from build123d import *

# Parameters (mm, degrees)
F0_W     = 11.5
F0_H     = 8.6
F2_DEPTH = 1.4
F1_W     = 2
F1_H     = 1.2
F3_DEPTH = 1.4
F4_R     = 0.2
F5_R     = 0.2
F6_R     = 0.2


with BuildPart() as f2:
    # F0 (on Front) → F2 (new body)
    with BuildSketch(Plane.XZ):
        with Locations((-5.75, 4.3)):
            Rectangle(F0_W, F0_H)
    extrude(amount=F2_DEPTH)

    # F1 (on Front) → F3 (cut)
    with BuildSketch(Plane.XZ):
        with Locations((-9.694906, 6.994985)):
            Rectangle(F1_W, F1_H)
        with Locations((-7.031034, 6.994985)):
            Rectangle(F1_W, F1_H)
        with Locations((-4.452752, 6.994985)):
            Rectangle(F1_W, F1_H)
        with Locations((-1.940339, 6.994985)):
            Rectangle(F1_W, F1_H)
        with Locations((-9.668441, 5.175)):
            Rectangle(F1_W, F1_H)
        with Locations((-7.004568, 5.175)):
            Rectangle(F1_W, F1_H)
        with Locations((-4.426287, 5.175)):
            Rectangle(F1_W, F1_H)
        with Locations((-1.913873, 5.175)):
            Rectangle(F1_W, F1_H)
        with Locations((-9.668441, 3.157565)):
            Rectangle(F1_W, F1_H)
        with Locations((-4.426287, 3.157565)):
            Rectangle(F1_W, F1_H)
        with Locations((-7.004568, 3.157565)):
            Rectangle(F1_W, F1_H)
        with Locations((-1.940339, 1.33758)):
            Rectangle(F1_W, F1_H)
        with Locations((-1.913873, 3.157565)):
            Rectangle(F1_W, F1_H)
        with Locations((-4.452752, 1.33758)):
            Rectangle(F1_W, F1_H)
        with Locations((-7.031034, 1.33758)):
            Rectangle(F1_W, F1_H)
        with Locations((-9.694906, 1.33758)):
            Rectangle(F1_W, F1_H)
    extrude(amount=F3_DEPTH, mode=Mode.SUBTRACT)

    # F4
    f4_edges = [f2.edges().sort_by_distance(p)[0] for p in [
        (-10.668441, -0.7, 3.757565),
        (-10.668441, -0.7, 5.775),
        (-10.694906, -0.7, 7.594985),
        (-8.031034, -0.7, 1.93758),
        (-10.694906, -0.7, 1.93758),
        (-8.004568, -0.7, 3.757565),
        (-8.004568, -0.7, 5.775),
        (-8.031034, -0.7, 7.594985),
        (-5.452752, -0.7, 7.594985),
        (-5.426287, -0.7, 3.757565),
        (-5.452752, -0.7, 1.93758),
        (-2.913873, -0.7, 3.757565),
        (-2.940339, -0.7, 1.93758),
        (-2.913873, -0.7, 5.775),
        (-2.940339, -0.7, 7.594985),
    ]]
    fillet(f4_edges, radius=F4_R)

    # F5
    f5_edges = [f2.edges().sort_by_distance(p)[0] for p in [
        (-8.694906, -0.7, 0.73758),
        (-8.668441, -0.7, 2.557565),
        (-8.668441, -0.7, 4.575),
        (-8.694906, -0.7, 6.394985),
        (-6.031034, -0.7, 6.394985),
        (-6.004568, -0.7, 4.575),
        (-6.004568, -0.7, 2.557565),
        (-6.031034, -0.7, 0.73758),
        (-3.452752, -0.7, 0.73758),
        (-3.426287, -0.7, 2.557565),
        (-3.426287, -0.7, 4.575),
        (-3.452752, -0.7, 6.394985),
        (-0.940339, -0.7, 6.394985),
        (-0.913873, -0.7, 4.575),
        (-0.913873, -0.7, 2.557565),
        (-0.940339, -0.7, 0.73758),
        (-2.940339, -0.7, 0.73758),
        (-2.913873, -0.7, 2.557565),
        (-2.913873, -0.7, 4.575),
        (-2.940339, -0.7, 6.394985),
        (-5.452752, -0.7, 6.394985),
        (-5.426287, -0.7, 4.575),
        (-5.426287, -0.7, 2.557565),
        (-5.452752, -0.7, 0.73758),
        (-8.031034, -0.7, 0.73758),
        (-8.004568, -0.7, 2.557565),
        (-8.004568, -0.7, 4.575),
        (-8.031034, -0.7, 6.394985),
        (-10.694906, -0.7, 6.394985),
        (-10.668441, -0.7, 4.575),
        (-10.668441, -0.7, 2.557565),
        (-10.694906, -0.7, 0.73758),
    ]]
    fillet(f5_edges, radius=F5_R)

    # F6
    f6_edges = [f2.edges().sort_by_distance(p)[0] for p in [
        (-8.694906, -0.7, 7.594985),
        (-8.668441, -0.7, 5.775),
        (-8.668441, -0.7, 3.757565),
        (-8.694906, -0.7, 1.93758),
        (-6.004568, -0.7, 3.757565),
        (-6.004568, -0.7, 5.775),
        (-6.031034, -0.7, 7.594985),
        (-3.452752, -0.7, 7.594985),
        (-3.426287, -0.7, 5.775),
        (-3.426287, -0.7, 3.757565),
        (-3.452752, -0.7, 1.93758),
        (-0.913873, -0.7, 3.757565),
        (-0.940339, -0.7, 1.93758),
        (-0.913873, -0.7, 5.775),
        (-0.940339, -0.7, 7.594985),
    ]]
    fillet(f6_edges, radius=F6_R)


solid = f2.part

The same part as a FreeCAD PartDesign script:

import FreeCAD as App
import Part
import Sketcher
from FreeCAD import Vector


def edges_at(feature, points):
    """Names of the edges that pass closest to the given points."""
    edges = feature.Shape.Edges
    near = lambda p: min(range(len(edges)), key=lambda i: edges[i].distToShape(Part.Vertex(*p))[0])
    return sorted({f"Edge{near(p) + 1}" for p in points})


def add_polygon(sketch, points):
    """Adds a closed chain of lines whose ends are joined by coincident constraints."""
    first, n = sketch.GeometryCount, len(points)
    for a, b in zip(points, points[1:] + points[:1]):
        sketch.addGeometry(Part.LineSegment(App.Vector(*a, 0), App.Vector(*b, 0)), False)
    for i in range(n):
        sketch.addConstraint(Sketcher.Constraint("Coincident", first + i, 2, first + (i + 1) % n, 1))

doc = App.newDocument("Part")
body = doc.addObject("PartDesign::Body", "Body")

# Sketch on XZ plane
sketch1 = doc.addObject("Sketcher::SketchObject", "Sketch")
body.addObject(sketch1)
sketch1.AttachmentSupport = (doc.XZ_Plane, [""])
sketch1.MapMode = "FlatFace"
add_polygon(sketch1, [(-12, 9), (-12, 0), (0, 0), (0, 9)])  # lines 0-3
sketch1.addConstraint([
    Sketcher.Constraint("Vertical", 0),
    Sketcher.Constraint("Horizontal", 1),
    Sketcher.Constraint("Vertical", 2),
    Sketcher.Constraint("Horizontal", 3),
    Sketcher.Constraint("Coincident", 1, 2, -1, 1),
    Sketcher.Constraint("DistanceX", 1, 1, 1, 2, 11.5),
    Sketcher.Constraint("DistanceY", 0, 2, 0, 1, 8.6),
])
pad1 = doc.addObject("PartDesign::Pad", "Pad")
body.addObject(pad1)
pad1.Profile = sketch1
pad1.Length = 1.4

# Sketch on XZ plane
sketch2 = doc.addObject("Sketcher::SketchObject", "Sketch001")
body.addObject(sketch2)
sketch2.AttachmentSupport = (doc.XZ_Plane, [""])
sketch2.MapMode = "FlatFace"
add_polygon(sketch2, [(-10.7, 7.6), (-10.7, 6.4), (-8.7, 6.4), (-8.7, 7.6)])  # lines 0-3
add_polygon(sketch2, [(-8, 7.6), (-8, 6.4), (-6, 6.4), (-6, 7.6)])  # lines 4-7
add_polygon(sketch2, [(-5.5, 7.6), (-5.5, 6.4), (-3.5, 6.4), (-3.5, 7.6)])  # lines 8-11
add_polygon(sketch2, [(-2.9, 7.6), (-2.9, 6.4), (-0.9, 6.4), (-0.9, 7.6)])  # lines 12-15
add_polygon(sketch2, [(-10.7, 5.8), (-10.7, 4.6), (-8.7, 4.6), (-8.7, 5.8)])  # lines 16-19
add_polygon(sketch2, [(-8, 5.8), (-8, 4.6), (-6, 4.6), (-6, 5.8)])  # lines 20-23
add_polygon(sketch2, [(-5.4, 5.8), (-5.4, 4.6), (-3.4, 4.6), (-3.4, 5.8)])  # lines 24-27
add_polygon(sketch2, [(-2.9, 5.8), (-2.9, 4.6), (-0.9, 4.6), (-0.9, 5.8)])  # lines 28-31
add_polygon(sketch2, [(-10.7, 3.8), (-10.7, 2.6), (-8.7, 2.6), (-8.7, 3.8)])  # lines 32-35
add_polygon(sketch2, [(-5.4, 3.8), (-5.4, 2.6), (-3.4, 2.6), (-3.4, 3.8)])  # lines 36-39
add_polygon(sketch2, [(-8, 3.8), (-8, 2.6), (-6, 2.6), (-6, 3.8)])  # lines 40-43
add_polygon(sketch2, [(-2.9, 1.9), (-2.9, 0.7), (-0.9, 0.7), (-0.9, 1.9)])  # lines 44-47
add_polygon(sketch2, [(-2.9, 3.8), (-2.9, 2.6), (-0.9, 2.6), (-0.9, 3.8)])  # lines 48-51
add_polygon(sketch2, [(-5.5, 1.9), (-5.5, 0.7), (-3.5, 0.7), (-3.5, 1.9)])  # lines 52-55
add_polygon(sketch2, [(-8, 1.9), (-8, 0.7), (-6, 0.7), (-6, 1.9)])  # lines 56-59
add_polygon(sketch2, [(-10.7, 1.9), (-10.7, 0.7), (-8.7, 0.7), (-8.7, 1.9)])  # lines 60-63
sketch2.addConstraint([
    Sketcher.Constraint("Vertical", 0),
    Sketcher.Constraint("Horizontal", 1),
    Sketcher.Constraint("Vertical", 2),
    Sketcher.Constraint("Horizontal", 3),
    Sketcher.Constraint("Vertical", 4),
    Sketcher.Constraint("Horizontal", 5),
    Sketcher.Constraint("Vertical", 6),
    Sketcher.Constraint("Horizontal", 7),
    Sketcher.Constraint("Vertical", 8),
    Sketcher.Constraint("Horizontal", 9),
    Sketcher.Constraint("Vertical", 10),
    Sketcher.Constraint("Horizontal", 11),
    Sketcher.Constraint("Vertical", 12),
    Sketcher.Constraint("Horizontal", 13),
    Sketcher.Constraint("Vertical", 14),
    Sketcher.Constraint("Horizontal", 15),
    Sketcher.Constraint("Vertical", 16),
    Sketcher.Constraint("Horizontal", 17),
    Sketcher.Constraint("Vertical", 18),
    Sketcher.Constraint("Horizontal", 19),
    Sketcher.Constraint("Vertical", 20),
    Sketcher.Constraint("Horizontal", 21),
    Sketcher.Constraint("Vertical", 22),
    Sketcher.Constraint("Horizontal", 23),
    Sketcher.Constraint("Vertical", 24),
    Sketcher.Constraint("Horizontal", 25),
    Sketcher.Constraint("Vertical", 26),
    Sketcher.Constraint("Horizontal", 27),
    Sketcher.Constraint("Vertical", 28),
    Sketcher.Constraint("Horizontal", 29),
    Sketcher.Constraint("Vertical", 30),
    Sketcher.Constraint("Horizontal", 31),
    Sketcher.Constraint("Vertical", 32),
    Sketcher.Constraint("Horizontal", 33),
    Sketcher.Constraint("Vertical", 34),
    Sketcher.Constraint("Horizontal", 35),
    Sketcher.Constraint("Vertical", 36),
    Sketcher.Constraint("Horizontal", 37),
    Sketcher.Constraint("Vertical", 38),
    Sketcher.Constraint("Horizontal", 39),
    Sketcher.Constraint("Vertical", 40),
    Sketcher.Constraint("Horizontal", 41),
    Sketcher.Constraint("Vertical", 42),
    Sketcher.Constraint("Horizontal", 43),
    Sketcher.Constraint("Vertical", 44),
    Sketcher.Constraint("Horizontal", 45),
    Sketcher.Constraint("Vertical", 46),
    Sketcher.Constraint("Horizontal", 47),
    Sketcher.Constraint("Vertical", 48),
    Sketcher.Constraint("Horizontal", 49),
    Sketcher.Constraint("Vertical", 50),
    Sketcher.Constraint("Horizontal", 51),
    Sketcher.Constraint("Vertical", 52),
    Sketcher.Constraint("Horizontal", 53),
    Sketcher.Constraint("Vertical", 54),
    Sketcher.Constraint("Horizontal", 55),
    Sketcher.Constraint("Vertical", 56),
    Sketcher.Constraint("Horizontal", 57),
    Sketcher.Constraint("Vertical", 58),
    Sketcher.Constraint("Horizontal", 59),
    Sketcher.Constraint("Vertical", 60),
    Sketcher.Constraint("Horizontal", 61),
    Sketcher.Constraint("Vertical", 62),
    Sketcher.Constraint("Horizontal", 63),
    Sketcher.Constraint("Horizontal", 1, 2, 4, 2),
    Sketcher.Constraint("Horizontal", 3, 2, 6, 2),
    Sketcher.Constraint("Horizontal", 5, 2, 8, 2),
    Sketcher.Constraint("Horizontal", 7, 2, 10, 2),
    Sketcher.Constraint("Horizontal", 9, 2, 12, 2),
    Sketcher.Constraint("Horizontal", 11, 2, 14, 2),
    Sketcher.Constraint("Horizontal", 17, 2, 20, 2),
    Sketcher.Constraint("Horizontal", 19, 2, 22, 2),
    Sketcher.Constraint("Horizontal", 21, 2, 24, 2),
    Sketcher.Constraint("Horizontal", 23, 2, 26, 2),
    Sketcher.Constraint("Horizontal", 25, 2, 28, 2),
    Sketcher.Constraint("Horizontal", 27, 2, 30, 2),
    Sketcher.Constraint("Horizontal", 33, 2, 36, 2),
    Sketcher.Constraint("Horizontal", 35, 2, 38, 2),
    Sketcher.Constraint("Horizontal", 37, 2, 40, 2),
    Sketcher.Constraint("Horizontal", 39, 2, 42, 2),
    Sketcher.Constraint("Horizontal", 41, 2, 48, 2),
    Sketcher.Constraint("Horizontal", 43, 2, 50, 2),
    Sketcher.Constraint("Horizontal", 45, 2, 52, 2),
    Sketcher.Constraint("Horizontal", 47, 2, 54, 2),
    Sketcher.Constraint("Horizontal", 53, 2, 56, 2),
    Sketcher.Constraint("Horizontal", 55, 2, 58, 2),
    Sketcher.Constraint("Horizontal", 57, 2, 60, 2),
    Sketcher.Constraint("Horizontal", 59, 2, 62, 2),
    Sketcher.Constraint("Vertical", 19, 2, 32, 2),
    Sketcher.Constraint("Vertical", 18, 2, 33, 2),
    Sketcher.Constraint("Vertical", 27, 2, 36, 2),
    Sketcher.Constraint("Vertical", 26, 2, 37, 2),
    Sketcher.Constraint("Vertical", 23, 2, 40, 2),
    Sketcher.Constraint("Vertical", 22, 2, 41, 2),
    Sketcher.Constraint("Vertical", 15, 2, 44, 2),
    Sketcher.Constraint("Vertical", 14, 2, 45, 2),
    Sketcher.Constraint("Vertical", 31, 2, 48, 2),
    Sketcher.Constraint("Vertical", 30, 2, 49, 2),
    Sketcher.Constraint("Vertical", 11, 2, 52, 2),
    Sketcher.Constraint("Vertical", 10, 2, 53, 2),
    Sketcher.Constraint("Vertical", 7, 2, 56, 2),
    Sketcher.Constraint("Vertical", 6, 2, 57, 2),
    Sketcher.Constraint("Vertical", 3, 2, 60, 2),
    Sketcher.Constraint("Vertical", 2, 2, 61, 2),
    Sketcher.Constraint("Equal", 3, 5),
    Sketcher.Constraint("Equal", 7, 9),
    Sketcher.Constraint("Equal", 11, 13),
    Sketcher.Constraint("Equal", 15, 17),
    Sketcher.Constraint("Equal", 19, 21),
    Sketcher.Constraint("Equal", 23, 25),
    Sketcher.Constraint("Equal", 27, 29),
    Sketcher.Constraint("Equal", 14, 16),
    Sketcher.Constraint("Equal", 30, 32),
    Sketcher.Constraint("Equal", 42, 44),
    Sketcher.Constraint("DistanceX", 1, 1, 1, 2, 2.0),
    Sketcher.Constraint("DistanceY", 0, 2, 0, 1, 1.2),
    Sketcher.Constraint("DistanceY", -1, 1, 16, 2, 4.575),
    Sketcher.Constraint("DistanceX", 9, 2, -1, 1, 3.452752),
    Sketcher.Constraint("DistanceX", 12, 2, -1, 1, 2.940339),
    Sketcher.Constraint("DistanceX", 16, 2, -1, 1, 10.668441),
    Sketcher.Constraint("DistanceX", 20, 2, -1, 1, 8.004568),
    Sketcher.Constraint("DistanceY", -1, 1, 44, 2, 0.73758),
    Sketcher.Constraint("DistanceX", 0, 2, -1, 1, 10.694906),
    Sketcher.Constraint("DistanceY", -1, 1, 0, 2, 6.394985),
    Sketcher.Constraint("DistanceX", 4, 2, -1, 1, 8.031034),
    Sketcher.Constraint("DistanceX", 24, 2, -1, 1, 5.426287),
    Sketcher.Constraint("DistanceX", 28, 2, -1, 1, 2.913873),
    Sketcher.Constraint("DistanceY", -1, 1, 32, 2, 2.557565),
])
pocket1 = doc.addObject("PartDesign::Pocket", "Pocket")
body.addObject(pocket1)
pocket1.Profile = sketch2
pocket1.Length = 1.4
pocket1.Reversed = True
doc.recompute()

fillet = doc.addObject("PartDesign::Fillet", "Fillet")
body.addObject(fillet)
fillet.Base = (pocket1, edges_at(pocket1, [
    (-10.668, -0.7, 3.758),
    (-10.668, -0.7, 5.775),
    (-10.695, -0.7, 7.595),
    (-8.031, -0.7, 1.938),
    (-10.695, -0.7, 1.938),
    (-8.005, -0.7, 3.758),
    (-8.005, -0.7, 5.775),
    (-8.031, -0.7, 7.595),
    (-5.453, -0.7, 7.595),
    (-5.426, -0.7, 3.758),
    (-5.453, -0.7, 1.938),
    (-2.914, -0.7, 3.758),
    (-2.94, -0.7, 1.938),
    (-2.914, -0.7, 5.775),
    (-2.94, -0.7, 7.595),
]))
fillet.Radius = 0.2
doc.recompute()

fillet2 = doc.addObject("PartDesign::Fillet", "Fillet001")
body.addObject(fillet2)
fillet2.Base = (fillet, edges_at(fillet, [
    (-8.695, -0.7, 0.738),
    (-8.668, -0.7, 2.558),
    (-8.668, -0.7, 4.575),
    (-8.695, -0.7, 6.395),
    (-6.031, -0.7, 6.395),
    (-6.005, -0.7, 4.575),
    (-6.005, -0.7, 2.558),
    (-6.031, -0.7, 0.738),
    (-3.453, -0.7, 0.738),
    (-3.426, -0.7, 2.558),
    (-3.426, -0.7, 4.575),
    (-3.453, -0.7, 6.395),
    (-0.94, -0.7, 6.395),
    (-0.914, -0.7, 4.575),
    (-0.914, -0.7, 2.558),
    (-0.94, -0.7, 0.738),
    (-2.94, -0.7, 0.738),
    (-2.914, -0.7, 2.558),
    (-2.914, -0.7, 4.575),
    (-2.94, -0.7, 6.395),
    (-5.453, -0.7, 6.395),
    (-5.426, -0.7, 4.575),
    (-5.426, -0.7, 2.558),
    (-5.453, -0.7, 0.738),
    (-8.031, -0.7, 0.738),
    (-8.005, -0.7, 2.558),
    (-8.005, -0.7, 4.575),
    (-8.031, -0.7, 6.395),
    (-10.695, -0.7, 6.395),
    (-10.668, -0.7, 4.575),
    (-10.668, -0.7, 2.558),
    (-10.695, -0.7, 0.738),
]))
fillet2.Radius = 0.2
doc.recompute()

fillet3 = doc.addObject("PartDesign::Fillet", "Fillet002")
body.addObject(fillet3)
fillet3.Base = (fillet2, edges_at(fillet2, [
    (-8.695, -0.7, 7.595),
    (-8.668, -0.7, 5.775),
    (-8.668, -0.7, 3.758),
    (-8.695, -0.7, 1.938),
    (-6.005, -0.7, 3.758),
    (-6.005, -0.7, 5.775),
    (-6.031, -0.7, 7.595),
    (-3.453, -0.7, 7.595),
    (-3.426, -0.7, 5.775),
    (-3.426, -0.7, 3.758),
    (-3.453, -0.7, 1.938),
    (-0.914, -0.7, 3.758),
    (-0.94, -0.7, 1.938),
    (-0.914, -0.7, 5.775),
    (-0.94, -0.7, 7.595),
]))
fillet3.Radius = 0.2

doc.recompute()
